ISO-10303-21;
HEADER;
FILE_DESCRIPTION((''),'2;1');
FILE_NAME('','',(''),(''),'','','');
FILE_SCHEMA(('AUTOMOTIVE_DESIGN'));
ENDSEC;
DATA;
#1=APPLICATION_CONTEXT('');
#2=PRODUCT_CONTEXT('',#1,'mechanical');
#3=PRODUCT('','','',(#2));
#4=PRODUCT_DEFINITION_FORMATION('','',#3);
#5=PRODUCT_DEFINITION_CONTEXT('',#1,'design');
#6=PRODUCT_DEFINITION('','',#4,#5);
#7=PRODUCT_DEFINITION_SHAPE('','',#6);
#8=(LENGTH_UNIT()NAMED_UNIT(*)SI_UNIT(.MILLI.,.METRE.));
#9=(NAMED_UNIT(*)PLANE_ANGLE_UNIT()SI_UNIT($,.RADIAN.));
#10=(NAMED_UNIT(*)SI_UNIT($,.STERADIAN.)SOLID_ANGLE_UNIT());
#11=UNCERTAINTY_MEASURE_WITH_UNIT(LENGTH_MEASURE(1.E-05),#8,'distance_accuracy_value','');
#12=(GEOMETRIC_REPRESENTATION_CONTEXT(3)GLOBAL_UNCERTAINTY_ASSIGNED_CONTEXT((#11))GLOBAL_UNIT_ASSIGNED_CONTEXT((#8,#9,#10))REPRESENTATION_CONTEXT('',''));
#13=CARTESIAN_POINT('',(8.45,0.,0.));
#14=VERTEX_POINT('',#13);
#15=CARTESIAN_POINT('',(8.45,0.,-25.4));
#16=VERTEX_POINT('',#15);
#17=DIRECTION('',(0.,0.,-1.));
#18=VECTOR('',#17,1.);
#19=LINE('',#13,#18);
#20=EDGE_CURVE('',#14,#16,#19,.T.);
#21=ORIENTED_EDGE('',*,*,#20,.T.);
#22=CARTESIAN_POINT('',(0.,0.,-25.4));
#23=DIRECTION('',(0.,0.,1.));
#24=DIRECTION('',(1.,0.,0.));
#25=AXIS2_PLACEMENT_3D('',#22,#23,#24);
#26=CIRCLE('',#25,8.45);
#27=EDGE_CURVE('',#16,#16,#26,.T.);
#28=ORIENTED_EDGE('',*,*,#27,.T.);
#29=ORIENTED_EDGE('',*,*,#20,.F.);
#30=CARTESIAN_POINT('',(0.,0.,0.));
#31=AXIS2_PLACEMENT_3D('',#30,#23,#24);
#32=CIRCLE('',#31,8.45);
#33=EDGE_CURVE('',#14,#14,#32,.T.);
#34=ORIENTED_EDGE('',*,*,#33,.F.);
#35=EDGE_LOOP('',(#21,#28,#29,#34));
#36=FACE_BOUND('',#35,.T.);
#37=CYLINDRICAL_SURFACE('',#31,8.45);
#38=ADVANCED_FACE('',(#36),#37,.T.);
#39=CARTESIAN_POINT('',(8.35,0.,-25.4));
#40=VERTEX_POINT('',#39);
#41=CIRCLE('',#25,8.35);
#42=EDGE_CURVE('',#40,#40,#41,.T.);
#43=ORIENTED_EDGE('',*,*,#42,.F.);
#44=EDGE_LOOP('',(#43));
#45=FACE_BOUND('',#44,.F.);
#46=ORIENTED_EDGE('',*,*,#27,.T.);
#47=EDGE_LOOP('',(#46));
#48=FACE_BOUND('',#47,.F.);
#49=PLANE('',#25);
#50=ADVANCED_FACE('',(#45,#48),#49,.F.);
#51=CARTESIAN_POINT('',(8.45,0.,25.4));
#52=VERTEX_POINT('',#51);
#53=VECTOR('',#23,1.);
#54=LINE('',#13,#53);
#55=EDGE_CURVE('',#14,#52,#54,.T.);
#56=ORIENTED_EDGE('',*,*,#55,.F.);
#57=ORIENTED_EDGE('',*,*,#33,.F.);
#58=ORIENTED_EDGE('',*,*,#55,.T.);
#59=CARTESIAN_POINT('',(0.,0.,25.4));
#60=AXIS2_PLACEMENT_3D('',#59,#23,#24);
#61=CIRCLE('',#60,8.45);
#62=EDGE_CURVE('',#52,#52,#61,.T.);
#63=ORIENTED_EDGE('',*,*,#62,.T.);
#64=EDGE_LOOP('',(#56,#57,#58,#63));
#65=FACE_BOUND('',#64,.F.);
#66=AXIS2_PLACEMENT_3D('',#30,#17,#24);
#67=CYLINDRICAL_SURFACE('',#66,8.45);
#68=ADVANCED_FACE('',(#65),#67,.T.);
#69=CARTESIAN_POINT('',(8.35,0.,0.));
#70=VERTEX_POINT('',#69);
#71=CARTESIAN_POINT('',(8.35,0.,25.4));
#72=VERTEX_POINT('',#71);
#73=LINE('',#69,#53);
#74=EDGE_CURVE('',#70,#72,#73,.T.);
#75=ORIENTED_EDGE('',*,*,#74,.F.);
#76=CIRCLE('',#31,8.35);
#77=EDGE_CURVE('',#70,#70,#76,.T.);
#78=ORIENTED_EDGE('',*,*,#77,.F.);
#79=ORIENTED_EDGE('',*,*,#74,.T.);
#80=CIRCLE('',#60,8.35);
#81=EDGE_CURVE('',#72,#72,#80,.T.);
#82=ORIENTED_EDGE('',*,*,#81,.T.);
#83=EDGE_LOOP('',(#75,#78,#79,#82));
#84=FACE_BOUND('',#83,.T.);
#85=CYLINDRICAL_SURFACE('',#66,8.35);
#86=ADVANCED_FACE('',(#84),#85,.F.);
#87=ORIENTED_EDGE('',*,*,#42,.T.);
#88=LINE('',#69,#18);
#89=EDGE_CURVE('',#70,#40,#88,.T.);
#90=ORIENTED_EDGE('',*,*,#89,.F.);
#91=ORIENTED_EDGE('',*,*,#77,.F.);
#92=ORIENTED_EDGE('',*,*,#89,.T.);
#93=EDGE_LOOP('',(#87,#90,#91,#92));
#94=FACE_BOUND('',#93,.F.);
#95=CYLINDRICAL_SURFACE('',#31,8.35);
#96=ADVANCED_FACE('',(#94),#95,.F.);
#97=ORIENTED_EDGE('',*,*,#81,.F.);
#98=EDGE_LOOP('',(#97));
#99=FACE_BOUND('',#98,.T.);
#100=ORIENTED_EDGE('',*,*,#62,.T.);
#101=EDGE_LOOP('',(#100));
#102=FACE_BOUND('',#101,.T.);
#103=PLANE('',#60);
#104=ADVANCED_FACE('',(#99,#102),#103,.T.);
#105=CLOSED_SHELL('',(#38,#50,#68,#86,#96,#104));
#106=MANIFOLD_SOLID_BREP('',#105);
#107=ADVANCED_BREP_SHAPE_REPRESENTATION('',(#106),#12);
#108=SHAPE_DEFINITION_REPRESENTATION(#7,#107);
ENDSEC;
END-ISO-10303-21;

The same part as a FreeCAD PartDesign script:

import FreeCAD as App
import Part
import Sketcher
from FreeCAD import Vector

doc = App.newDocument("Part")
body = doc.addObject("PartDesign::Body", "Body")

sketch1 = body.newObject("Sketcher::SketchObject", "Sketch")
sketch1.AttachmentSupport = (doc.getObject("XY_Plane"), [""])
sketch1.MapMode = "FlatFace"
sketch1.addGeometry([
    Part.Circle(Vector(0, 0, 0), Vector(0, 0, 1), 8),
    Part.Circle(Vector(0, 0, 0), Vector(0, 0, 1), 8),
], False)
sketch1.addConstraint([
    Sketcher.Constraint("Coincident", 0, 3, -1, 1),
    Sketcher.Constraint("Coincident", 1, 3, -1, 1),
    Sketcher.Constraint("Diameter", 1, 16.7),
    Sketcher.Constraint("Diameter", 0, 16.9),
])
pad1 = body.newObject("PartDesign::Pad", "Pad")
pad1.Profile = sketch1
pad1.Length = 50.8
pad1.Midplane = True

doc.recompute()
